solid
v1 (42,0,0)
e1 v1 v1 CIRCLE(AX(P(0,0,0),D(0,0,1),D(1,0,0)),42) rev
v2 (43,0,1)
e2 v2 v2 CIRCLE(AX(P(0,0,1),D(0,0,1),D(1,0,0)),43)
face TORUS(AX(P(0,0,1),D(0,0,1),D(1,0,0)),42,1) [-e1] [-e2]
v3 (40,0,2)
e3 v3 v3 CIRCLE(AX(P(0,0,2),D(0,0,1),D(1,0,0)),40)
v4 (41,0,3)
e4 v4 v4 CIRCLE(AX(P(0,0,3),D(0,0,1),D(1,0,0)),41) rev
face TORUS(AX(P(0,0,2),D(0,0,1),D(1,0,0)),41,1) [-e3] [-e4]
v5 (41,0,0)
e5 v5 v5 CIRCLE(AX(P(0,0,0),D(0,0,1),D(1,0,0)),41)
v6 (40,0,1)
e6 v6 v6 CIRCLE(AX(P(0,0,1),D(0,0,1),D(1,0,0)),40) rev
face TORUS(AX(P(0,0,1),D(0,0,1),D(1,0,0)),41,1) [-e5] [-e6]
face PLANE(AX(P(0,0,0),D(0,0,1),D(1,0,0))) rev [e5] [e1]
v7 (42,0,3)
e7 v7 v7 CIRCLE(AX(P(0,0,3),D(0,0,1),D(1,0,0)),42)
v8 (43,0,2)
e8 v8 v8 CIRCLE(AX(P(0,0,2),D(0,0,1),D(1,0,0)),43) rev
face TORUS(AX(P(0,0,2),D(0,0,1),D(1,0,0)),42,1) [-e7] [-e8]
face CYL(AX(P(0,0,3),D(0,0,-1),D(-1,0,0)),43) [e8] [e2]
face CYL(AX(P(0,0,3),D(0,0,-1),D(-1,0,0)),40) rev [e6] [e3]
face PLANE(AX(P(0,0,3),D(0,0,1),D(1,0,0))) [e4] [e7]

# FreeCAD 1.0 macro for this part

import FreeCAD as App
import Part
import Sketcher

V = App.Vector


def edges_at(feature, points):
    """Names of the edges that pass closest to the given points."""
    edges = feature.Shape.Edges
    near = lambda p: min(range(len(edges)), key=lambda i: edges[i].distToShape(Part.Vertex(*p))[0])
    return sorted({f"Edge{near(p) + 1}" for p in points})

doc = App.newDocument("Part")
body = doc.addObject("PartDesign::Body", "Body")

# Sketch on XY plane
sketch1 = body.newObject("Sketcher::SketchObject", "Sketch")
sketch1.AttachmentSupport = (doc.getObject("XY_Plane"), [""])
sketch1.MapMode = "FlatFace"
sketch1.addGeometry([
    Part.Circle(V(0, 0, 0), V(0, 0, 1), 43),
    Part.Circle(V(0, 0, 0), V(0, 0, 1), 40),
], False)
sketch1.addConstraint([
    Sketcher.Constraint("Coincident", 0, 3, -1, 1),
    Sketcher.Constraint("Coincident", 1, 3, -1, 1),
    Sketcher.Constraint("Diameter", 0, 86.0),
    Sketcher.Constraint("Diameter", 1, 80.0),
])
pad1 = body.newObject("PartDesign::Pad", "Pad")
pad1.Profile = sketch1
pad1.Length = 3
doc.recompute()

fillet = body.newObject("PartDesign::Fillet", "Fillet")
fillet.Base = (pad1, edges_at(pad1, [
    (-43, 0, 0),
    (-43, 0, 3),
    (-40, 0, 0),
    (-40, 0, 3),
]))
fillet.Radius = 1

doc.recompute()
